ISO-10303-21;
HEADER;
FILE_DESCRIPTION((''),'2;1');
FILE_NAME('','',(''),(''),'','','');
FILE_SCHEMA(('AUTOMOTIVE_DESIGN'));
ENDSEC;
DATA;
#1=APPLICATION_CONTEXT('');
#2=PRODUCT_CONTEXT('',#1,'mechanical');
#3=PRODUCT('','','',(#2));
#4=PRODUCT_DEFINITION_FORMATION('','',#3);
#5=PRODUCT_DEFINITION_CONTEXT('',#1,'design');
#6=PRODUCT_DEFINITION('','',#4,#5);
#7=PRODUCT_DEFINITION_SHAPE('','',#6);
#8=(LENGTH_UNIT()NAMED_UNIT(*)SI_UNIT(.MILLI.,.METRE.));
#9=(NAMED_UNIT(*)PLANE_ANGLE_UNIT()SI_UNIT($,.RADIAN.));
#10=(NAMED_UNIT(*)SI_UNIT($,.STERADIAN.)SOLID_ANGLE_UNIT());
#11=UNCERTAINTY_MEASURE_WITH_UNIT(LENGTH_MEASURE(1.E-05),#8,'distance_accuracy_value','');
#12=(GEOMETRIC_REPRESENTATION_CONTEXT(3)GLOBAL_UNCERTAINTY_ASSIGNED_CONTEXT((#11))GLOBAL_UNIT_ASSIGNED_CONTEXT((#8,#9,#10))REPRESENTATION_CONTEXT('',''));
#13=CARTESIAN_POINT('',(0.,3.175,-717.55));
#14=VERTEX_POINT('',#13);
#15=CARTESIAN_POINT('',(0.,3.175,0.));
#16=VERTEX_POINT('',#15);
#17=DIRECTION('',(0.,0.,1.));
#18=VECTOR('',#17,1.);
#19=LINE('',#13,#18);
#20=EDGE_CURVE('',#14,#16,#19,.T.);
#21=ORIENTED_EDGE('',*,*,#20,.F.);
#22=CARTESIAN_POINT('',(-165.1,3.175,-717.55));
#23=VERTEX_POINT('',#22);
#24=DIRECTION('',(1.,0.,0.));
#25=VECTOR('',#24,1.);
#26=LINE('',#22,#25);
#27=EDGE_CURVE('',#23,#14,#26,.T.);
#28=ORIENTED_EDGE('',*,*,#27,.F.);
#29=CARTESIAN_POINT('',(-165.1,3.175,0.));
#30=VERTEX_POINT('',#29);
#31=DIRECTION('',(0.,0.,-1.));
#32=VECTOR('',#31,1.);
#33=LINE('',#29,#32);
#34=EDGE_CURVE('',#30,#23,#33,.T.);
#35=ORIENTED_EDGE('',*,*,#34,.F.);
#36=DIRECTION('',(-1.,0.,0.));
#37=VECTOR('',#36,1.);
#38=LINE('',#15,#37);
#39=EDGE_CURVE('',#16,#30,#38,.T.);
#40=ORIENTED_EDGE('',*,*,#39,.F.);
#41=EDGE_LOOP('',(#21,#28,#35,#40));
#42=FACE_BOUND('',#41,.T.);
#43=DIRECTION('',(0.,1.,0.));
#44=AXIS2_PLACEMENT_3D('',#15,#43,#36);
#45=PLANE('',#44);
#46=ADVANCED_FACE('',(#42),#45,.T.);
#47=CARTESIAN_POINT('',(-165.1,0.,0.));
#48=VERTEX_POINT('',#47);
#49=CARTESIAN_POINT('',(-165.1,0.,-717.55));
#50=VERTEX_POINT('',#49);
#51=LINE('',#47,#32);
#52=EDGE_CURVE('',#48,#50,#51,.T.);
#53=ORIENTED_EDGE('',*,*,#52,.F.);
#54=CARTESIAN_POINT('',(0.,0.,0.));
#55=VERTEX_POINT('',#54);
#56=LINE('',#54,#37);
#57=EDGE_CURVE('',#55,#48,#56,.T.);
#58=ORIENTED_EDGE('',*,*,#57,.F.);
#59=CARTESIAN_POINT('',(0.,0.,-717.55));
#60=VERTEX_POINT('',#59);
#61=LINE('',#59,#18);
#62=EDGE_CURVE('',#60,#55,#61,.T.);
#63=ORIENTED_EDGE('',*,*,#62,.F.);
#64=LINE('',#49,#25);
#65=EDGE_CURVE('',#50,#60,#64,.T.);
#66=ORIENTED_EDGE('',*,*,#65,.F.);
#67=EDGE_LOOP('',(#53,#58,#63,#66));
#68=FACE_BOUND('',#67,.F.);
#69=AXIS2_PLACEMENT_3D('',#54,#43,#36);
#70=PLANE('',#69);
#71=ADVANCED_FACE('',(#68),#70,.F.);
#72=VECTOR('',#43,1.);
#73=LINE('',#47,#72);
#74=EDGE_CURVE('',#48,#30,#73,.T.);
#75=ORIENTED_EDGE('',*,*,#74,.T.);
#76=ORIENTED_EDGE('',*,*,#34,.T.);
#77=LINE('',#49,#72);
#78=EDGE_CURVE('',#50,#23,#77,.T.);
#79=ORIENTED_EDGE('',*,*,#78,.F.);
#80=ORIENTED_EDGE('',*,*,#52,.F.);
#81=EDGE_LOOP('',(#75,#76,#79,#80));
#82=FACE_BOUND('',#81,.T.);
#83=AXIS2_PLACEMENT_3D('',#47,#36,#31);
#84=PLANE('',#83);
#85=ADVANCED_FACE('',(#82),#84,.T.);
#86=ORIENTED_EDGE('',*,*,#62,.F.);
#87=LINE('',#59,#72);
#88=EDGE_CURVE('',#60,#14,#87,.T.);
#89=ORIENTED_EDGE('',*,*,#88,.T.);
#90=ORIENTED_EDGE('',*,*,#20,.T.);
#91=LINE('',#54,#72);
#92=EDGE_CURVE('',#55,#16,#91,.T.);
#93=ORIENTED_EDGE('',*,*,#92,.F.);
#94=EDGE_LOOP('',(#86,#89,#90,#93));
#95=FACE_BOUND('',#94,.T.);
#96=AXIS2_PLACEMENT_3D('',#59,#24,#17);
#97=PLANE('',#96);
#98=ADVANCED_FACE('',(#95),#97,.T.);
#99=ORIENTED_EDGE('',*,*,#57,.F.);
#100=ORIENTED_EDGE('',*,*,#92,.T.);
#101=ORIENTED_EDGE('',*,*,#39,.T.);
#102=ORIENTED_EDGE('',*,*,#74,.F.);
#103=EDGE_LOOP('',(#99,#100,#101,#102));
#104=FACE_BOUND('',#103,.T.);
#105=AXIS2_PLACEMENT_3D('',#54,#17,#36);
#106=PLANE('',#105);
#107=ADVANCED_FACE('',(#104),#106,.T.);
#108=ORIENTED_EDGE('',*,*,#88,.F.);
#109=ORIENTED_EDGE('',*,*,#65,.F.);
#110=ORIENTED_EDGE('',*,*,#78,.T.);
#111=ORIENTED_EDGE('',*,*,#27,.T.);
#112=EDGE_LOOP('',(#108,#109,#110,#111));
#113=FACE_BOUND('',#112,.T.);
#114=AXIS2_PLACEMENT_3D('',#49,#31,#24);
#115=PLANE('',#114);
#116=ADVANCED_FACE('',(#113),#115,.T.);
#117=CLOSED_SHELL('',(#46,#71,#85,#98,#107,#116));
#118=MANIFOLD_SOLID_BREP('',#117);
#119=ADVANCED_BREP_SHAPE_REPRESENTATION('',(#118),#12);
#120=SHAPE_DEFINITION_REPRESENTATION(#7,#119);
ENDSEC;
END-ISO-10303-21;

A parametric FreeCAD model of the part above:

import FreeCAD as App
import Part
import Sketcher
from FreeCAD import Vector
Q = App.Units.Quantity

doc = App.newDocument("Part")
body = doc.addObject("PartDesign::Body", "Body")

# Sketch on XZ plane
sketch1 = doc.addObject("Sketcher::SketchObject", "Sketch")
body.addObject(sketch1)
sketch1.AttachmentSupport = (doc.XZ_Plane, [""])
sketch1.MapMode = "FlatFace"
sketch1.addGeometry(Part.LineSegment(Vector(-165, 0, 0), Vector(0, 0, 0)), False)
sketch1.addGeometry(Part.LineSegment(Vector(0, 0, 0), Vector(0, -718, 0)), False)
sketch1.addGeometry(Part.LineSegment(Vector(0, -718, 0), Vector(-165, -718, 0)), False)
sketch1.addGeometry(Part.LineSegment(Vector(-165, -718, 0), Vector(-165, 0, 0)), False)
sketch1.addConstraint(Sketcher.Constraint("Coincident", 0, 2, 1, 1))
sketch1.addConstraint(Sketcher.Constraint("Coincident", 1, 2, 2, 1))
sketch1.addConstraint(Sketcher.Constraint("Coincident", 2, 2, 3, 1))
sketch1.addConstraint(Sketcher.Constraint("Coincident", 3, 2, 0, 1))
sketch1.addConstraint(Sketcher.Constraint("Horizontal", 0))
sketch1.addConstraint(Sketcher.Constraint("Vertical", 1))
sketch1.addConstraint(Sketcher.Constraint("Horizontal", 2))
sketch1.addConstraint(Sketcher.Constraint("Vertical", 3))
sketch1.addConstraint(Sketcher.Constraint("Coincident", 0, 2, -1, 1))
sketch1.addConstraint(Sketcher.Constraint("DistanceX", 0, 1, 0, 2, Q("6.5 in")))
sketch1.addConstraint(Sketcher.Constraint("DistanceY", 1, 2, 1, 1, Q("28.25 in")))
pad1 = doc.addObject("PartDesign::Pad", "Pad")
body.addObject(pad1)
pad1.Profile = sketch1
pad1.Length = Q("0.125 in")
pad1.Reversed = True

doc.recompute()
